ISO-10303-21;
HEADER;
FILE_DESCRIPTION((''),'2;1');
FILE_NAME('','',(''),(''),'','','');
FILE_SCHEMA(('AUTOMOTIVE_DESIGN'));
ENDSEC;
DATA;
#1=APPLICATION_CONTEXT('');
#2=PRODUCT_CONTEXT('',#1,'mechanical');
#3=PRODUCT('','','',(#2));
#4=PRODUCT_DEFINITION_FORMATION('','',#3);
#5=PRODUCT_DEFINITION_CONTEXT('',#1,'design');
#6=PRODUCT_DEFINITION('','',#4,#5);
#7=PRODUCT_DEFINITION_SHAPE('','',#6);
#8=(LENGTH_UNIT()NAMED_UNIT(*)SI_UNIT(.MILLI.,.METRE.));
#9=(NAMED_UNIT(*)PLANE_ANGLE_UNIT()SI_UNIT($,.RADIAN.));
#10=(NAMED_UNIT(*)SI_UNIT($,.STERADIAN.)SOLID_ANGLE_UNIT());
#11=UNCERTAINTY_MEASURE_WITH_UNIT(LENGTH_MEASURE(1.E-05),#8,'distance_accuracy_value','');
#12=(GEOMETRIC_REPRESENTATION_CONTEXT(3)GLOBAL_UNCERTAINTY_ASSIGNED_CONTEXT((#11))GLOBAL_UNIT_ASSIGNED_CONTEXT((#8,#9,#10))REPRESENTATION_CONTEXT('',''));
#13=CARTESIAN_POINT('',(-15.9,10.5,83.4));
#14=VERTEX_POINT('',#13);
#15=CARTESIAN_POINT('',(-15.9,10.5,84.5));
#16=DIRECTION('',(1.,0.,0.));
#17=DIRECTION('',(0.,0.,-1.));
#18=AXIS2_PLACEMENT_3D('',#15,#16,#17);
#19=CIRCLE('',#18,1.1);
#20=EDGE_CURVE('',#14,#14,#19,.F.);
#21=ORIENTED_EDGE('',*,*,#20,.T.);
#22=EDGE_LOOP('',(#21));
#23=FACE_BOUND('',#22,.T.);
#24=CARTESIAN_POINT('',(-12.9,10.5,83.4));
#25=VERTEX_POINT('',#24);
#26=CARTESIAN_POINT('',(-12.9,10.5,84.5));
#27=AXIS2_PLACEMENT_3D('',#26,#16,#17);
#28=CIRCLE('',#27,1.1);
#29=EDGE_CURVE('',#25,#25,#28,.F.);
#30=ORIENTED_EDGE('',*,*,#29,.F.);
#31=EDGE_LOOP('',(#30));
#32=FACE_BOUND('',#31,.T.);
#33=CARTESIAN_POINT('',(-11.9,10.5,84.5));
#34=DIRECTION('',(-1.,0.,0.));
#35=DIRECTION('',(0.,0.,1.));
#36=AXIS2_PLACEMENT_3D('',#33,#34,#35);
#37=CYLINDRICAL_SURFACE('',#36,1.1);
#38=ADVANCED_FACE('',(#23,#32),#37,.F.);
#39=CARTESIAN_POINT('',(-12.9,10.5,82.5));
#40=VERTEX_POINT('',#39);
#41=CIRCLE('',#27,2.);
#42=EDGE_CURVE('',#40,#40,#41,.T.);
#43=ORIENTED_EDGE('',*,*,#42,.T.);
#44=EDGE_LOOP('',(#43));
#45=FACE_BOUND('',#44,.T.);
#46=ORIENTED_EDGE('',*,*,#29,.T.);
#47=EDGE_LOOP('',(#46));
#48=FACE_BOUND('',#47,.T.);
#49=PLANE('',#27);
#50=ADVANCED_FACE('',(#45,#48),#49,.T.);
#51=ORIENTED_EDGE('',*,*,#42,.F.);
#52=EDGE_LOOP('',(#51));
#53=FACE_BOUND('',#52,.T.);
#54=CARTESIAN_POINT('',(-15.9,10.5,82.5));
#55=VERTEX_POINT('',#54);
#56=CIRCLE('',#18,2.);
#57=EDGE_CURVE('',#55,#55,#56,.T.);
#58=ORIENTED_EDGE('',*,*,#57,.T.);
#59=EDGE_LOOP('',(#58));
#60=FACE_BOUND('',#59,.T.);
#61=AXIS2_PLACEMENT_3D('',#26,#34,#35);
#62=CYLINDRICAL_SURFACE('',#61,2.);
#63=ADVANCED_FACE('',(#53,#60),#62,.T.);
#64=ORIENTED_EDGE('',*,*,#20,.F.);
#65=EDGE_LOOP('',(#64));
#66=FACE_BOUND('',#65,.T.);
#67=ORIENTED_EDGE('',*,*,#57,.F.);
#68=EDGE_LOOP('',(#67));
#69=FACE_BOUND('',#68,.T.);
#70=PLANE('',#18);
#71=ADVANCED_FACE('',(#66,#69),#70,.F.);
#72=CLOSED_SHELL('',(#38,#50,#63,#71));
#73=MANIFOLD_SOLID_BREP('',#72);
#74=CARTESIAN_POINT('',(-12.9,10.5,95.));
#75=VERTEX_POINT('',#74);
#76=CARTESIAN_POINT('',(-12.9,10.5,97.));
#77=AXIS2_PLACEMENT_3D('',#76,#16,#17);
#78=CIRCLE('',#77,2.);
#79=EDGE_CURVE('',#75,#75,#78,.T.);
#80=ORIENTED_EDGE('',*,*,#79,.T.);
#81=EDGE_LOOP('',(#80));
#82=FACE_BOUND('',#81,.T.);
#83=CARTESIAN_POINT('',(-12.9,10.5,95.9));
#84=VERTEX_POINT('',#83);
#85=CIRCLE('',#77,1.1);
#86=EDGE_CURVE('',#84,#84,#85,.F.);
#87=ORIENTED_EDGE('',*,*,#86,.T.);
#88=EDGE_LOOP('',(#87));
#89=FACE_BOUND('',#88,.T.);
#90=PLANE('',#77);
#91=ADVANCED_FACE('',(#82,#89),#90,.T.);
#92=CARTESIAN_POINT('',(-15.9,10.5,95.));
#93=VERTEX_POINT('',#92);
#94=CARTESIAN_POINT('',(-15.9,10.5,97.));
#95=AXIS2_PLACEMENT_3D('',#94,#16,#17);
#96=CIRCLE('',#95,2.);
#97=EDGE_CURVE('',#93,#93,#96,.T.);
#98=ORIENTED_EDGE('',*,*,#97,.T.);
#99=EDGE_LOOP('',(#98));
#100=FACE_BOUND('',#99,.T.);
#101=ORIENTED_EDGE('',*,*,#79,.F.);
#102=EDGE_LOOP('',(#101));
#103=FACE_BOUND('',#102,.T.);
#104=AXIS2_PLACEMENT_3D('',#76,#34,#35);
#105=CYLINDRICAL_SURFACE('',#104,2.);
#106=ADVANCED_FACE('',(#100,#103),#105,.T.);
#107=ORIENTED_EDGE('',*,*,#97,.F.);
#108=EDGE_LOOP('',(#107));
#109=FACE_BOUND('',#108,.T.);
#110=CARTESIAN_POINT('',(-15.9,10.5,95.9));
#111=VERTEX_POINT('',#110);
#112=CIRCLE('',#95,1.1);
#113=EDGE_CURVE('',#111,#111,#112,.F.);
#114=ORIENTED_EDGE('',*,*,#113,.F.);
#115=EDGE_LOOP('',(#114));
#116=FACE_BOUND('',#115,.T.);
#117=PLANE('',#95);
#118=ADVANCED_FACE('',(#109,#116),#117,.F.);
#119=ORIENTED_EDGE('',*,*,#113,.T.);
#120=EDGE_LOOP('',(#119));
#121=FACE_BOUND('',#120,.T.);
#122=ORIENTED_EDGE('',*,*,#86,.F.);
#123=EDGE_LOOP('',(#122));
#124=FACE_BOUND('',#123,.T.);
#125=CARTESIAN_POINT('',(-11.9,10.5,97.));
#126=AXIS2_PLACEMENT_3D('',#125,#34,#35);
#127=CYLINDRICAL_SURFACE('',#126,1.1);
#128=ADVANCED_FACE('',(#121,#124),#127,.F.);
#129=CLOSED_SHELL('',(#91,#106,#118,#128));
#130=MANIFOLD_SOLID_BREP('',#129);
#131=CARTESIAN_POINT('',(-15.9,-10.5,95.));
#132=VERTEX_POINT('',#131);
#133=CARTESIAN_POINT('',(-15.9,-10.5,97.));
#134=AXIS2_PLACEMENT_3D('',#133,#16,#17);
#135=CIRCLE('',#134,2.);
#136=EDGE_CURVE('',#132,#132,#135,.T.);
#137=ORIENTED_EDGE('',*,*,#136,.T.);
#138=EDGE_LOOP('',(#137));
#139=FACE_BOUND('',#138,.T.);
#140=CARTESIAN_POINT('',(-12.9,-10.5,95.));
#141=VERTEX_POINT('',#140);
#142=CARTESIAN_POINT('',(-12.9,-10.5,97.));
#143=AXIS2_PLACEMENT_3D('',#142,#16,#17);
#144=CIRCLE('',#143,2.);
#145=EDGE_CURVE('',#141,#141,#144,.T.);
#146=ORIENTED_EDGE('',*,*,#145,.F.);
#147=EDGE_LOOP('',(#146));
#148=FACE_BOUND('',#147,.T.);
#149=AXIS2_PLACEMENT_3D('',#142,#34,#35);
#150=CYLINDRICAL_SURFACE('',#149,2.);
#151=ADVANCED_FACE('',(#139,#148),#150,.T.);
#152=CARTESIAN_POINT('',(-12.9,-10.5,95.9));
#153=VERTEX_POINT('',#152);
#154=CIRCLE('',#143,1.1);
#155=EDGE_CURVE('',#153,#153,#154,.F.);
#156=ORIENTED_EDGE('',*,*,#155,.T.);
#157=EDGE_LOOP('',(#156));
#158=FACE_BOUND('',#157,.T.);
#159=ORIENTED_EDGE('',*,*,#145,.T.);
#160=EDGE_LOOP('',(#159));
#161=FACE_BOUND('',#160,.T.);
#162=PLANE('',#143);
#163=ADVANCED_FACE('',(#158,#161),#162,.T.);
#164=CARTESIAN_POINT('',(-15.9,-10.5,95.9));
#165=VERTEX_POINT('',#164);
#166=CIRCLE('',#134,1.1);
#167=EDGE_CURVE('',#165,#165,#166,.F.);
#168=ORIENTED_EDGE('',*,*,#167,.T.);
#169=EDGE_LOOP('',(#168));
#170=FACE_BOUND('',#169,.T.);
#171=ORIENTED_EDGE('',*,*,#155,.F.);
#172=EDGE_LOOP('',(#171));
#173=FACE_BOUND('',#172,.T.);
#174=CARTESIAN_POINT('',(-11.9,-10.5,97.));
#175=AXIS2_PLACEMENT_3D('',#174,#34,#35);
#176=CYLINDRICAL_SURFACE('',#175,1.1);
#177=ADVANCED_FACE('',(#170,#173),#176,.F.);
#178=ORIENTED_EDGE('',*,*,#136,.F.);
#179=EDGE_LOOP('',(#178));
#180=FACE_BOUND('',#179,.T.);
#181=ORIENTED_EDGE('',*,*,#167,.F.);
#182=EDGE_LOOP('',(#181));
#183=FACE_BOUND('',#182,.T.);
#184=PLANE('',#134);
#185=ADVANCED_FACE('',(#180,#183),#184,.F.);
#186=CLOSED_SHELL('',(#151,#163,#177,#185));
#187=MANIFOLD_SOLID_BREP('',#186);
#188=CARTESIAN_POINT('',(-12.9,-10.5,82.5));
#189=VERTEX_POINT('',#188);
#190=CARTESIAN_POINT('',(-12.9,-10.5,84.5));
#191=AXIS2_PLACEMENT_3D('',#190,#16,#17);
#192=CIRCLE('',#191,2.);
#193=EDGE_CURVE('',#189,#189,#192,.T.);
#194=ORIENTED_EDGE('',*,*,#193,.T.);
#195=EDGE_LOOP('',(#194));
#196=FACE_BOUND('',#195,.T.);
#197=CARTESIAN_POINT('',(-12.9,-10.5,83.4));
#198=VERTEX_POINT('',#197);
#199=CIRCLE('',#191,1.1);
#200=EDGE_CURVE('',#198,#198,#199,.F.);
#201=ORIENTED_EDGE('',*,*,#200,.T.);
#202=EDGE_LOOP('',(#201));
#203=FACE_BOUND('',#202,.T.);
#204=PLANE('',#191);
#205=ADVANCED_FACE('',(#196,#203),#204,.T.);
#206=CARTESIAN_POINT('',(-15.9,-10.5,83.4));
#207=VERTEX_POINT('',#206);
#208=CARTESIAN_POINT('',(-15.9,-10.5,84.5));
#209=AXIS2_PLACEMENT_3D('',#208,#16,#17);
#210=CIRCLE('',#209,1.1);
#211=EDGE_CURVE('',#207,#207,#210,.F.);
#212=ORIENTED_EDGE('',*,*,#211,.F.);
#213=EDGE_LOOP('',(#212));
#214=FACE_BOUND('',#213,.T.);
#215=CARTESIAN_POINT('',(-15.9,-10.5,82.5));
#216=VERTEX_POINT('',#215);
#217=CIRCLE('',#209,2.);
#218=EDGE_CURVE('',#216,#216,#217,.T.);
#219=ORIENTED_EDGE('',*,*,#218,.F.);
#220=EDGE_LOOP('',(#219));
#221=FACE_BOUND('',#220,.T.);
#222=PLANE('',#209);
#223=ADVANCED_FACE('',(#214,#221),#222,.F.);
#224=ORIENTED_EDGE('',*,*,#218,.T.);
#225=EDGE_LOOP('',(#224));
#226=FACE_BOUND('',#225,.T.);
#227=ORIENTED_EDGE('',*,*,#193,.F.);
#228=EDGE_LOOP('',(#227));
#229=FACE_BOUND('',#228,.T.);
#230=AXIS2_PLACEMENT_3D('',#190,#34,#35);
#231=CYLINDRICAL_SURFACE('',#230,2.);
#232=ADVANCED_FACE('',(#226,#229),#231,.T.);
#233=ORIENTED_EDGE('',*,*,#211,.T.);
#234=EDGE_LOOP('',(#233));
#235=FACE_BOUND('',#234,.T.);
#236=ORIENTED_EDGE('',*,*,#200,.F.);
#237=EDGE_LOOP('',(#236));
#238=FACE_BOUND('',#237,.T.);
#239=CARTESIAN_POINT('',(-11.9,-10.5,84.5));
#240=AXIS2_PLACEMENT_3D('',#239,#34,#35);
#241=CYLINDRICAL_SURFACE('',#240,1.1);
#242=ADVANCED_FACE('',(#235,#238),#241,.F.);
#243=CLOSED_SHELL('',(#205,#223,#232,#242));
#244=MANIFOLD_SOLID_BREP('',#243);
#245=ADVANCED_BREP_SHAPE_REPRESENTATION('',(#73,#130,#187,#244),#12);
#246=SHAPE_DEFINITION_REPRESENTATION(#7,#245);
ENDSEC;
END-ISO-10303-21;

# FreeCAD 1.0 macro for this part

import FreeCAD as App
import Part
import Sketcher
Q = App.Units.Quantity

doc = App.newDocument("Part")
body = doc.addObject("PartDesign::Body", "Body")

# Sketch on YZ plane
sketch1 = body.newObject("Sketcher::SketchObject", "Sketch")
sketch1.AttachmentSupport = (doc.getObject("YZ_Plane"), [""])
sketch1.MapMode = "FlatFace"
sketch1.AttachmentOffset = App.Placement(App.Vector(0, 0, -15.9), App.Rotation())
sketch1.addGeometry(Part.Circle(App.Vector(-10.5, 97, 0), App.Vector(0, 0, 1), 2), False)
sketch1.addConstraint([
    Sketcher.Constraint("Diameter", 0, Q("4 mm")),
    Sketcher.Constraint("DistanceY", -1, 1, 0, 3, Q("97 mm")),
    Sketcher.Constraint("DistanceX", 0, 3, -1, 1, Q("10.5 mm")),
])
pad1 = body.newObject("PartDesign::Pad", "Pad")
pad1.Profile = sketch1
pad1.Length = 3
body2 = doc.addObject("PartDesign::Body", "Body001")

# Sketch on YZ plane
sketch2 = body2.newObject("Sketcher::SketchObject", "Sketch001")
sketch2.AttachmentSupport = (doc.getObject("YZ_Plane001"), [""])
sketch2.MapMode = "FlatFace"
sketch2.AttachmentOffset = App.Placement(App.Vector(0, 0, -15.9), App.Rotation())
sketch2.addGeometry(Part.Circle(App.Vector(-10.5, 84.5, 0), App.Vector(0, 0, 1), 2), False)
sketch2.addConstraint([
    Sketcher.Constraint("Diameter", 0, Q("4 mm")),
    Sketcher.Constraint("DistanceX", 0, 3, -1, 1, Q("10.5 mm")),
    Sketcher.Constraint("DistanceY", -1, 1, 0, 3, Q("84.5 mm")),
])
pad2 = body2.newObject("PartDesign::Pad", "Pad001")
pad2.Profile = sketch2
pad2.Length = 3
body3 = doc.addObject("PartDesign::Body", "Body002")

# Sketch on YZ plane
sketch3 = body3.newObject("Sketcher::SketchObject", "Sketch002")
sketch3.AttachmentSupport = (doc.getObject("YZ_Plane002"), [""])
sketch3.MapMode = "FlatFace"
sketch3.AttachmentOffset = App.Placement(App.Vector(0, 0, -15.9), App.Rotation())
sketch3.addGeometry(Part.Circle(App.Vector(10.5, 97, 0), App.Vector(0, 0, 1), 2), False)
sketch3.addConstraint([
    Sketcher.Constraint("Diameter", 0, Q("4 mm")),
    Sketcher.Constraint("DistanceY", -1, 1, 0, 3, Q("97 mm")),
    Sketcher.Constraint("DistanceX", -1, 1, 0, 3, Q("10.5 mm")),
])
pad3 = body3.newObject("PartDesign::Pad", "Pad002")
pad3.Profile = sketch3
pad3.Length = 3
body4 = doc.addObject("PartDesign::Body", "Body003")

# Sketch on YZ plane
sketch4 = body4.newObject("Sketcher::SketchObject", "Sketch003")
sketch4.AttachmentSupport = (doc.getObject("YZ_Plane003"), [""])
sketch4.MapMode = "FlatFace"
sketch4.AttachmentOffset = App.Placement(App.Vector(0, 0, -15.9), App.Rotation())
sketch4.addGeometry(Part.Circle(App.Vector(10.5, 84.5, 0), App.Vector(0, 0, 1), 2), False)
sketch4.addConstraint([
    Sketcher.Constraint("Diameter", 0, Q("4 mm")),
    Sketcher.Constraint("DistanceX", -1, 1, 0, 3, Q("10.5 mm")),
    Sketcher.Constraint("DistanceY", -1, 1, 0, 3, Q("84.5 mm")),
])
pad4 = body4.newObject("PartDesign::Pad", "Pad003")
pad4.Profile = sketch4
pad4.Length = 3
body5 = doc.addObject("PartDesign::Body", "Body004")
body5.AllowCompound = True

# Sketch on YZ plane
sketch5 = body5.newObject("Sketcher::SketchObject", "Sketch004")
sketch5.AttachmentSupport = (doc.getObject("YZ_Plane004"), [""])
sketch5.MapMode = "FlatFace"
sketch5.AttachmentOffset = App.Placement(App.Vector(0, 0, -16.9), App.Rotation())
sketch5.addGeometry([
    Part.Circle(App.Vector(-10.5, 97, 0), App.Vector(0, 0, 1), 1.1),
    Part.Circle(App.Vector(-10.5, 84.5, 0), App.Vector(0, 0, 1), 1.1),
    Part.Circle(App.Vector(10.5, 97, 0), App.Vector(0, 0, 1), 1.1),
    Part.Circle(App.Vector(10.5, 84.5, 0), App.Vector(0, 0, 1), 1.1),
], False)
sketch5.addConstraint([
    Sketcher.Constraint("Equal", 0, 1),
    Sketcher.Constraint("Equal", 1, 2),
    Sketcher.Constraint("Equal", 2, 3),
    Sketcher.Constraint("Symmetric", 0, 3, 2, 3, -2),
    Sketcher.Constraint("Symmetric", 1, 3, 3, 3, -2),
    Sketcher.Constraint("Vertical", 0, 3, 1, 3),
    Sketcher.Constraint("Diameter", 0, Q("2.2 mm")),
    Sketcher.Constraint("DistanceY", -1, 1, 0, 3, Q("97 mm")),
    Sketcher.Constraint("DistanceX", 0, 3, 2, 3, Q("21 mm")),
    Sketcher.Constraint("DistanceY", -1, 1, 1, 3, Q("84.5 mm")),
])
pad5 = body5.newObject("PartDesign::Pad", "Pad004")
pad5.Profile = sketch5
pad5.Length = 5
doc.recompute()

body6 = doc.addObject("PartDesign::Body", "Body005")
body6.BaseFeature = body5
boolean = body.newObject("PartDesign::Boolean", "Boolean")
boolean.Type = "Cut"
boolean.addObjects([body6])
doc.recompute()

body7 = doc.addObject("PartDesign::Body", "Body006")
body7.BaseFeature = body5
boolean2 = body2.newObject("PartDesign::Boolean", "Boolean001")
boolean2.Type = "Cut"
boolean2.addObjects([body7])
doc.recompute()

body8 = doc.addObject("PartDesign::Body", "Body007")
body8.BaseFeature = body5
boolean3 = body3.newObject("PartDesign::Boolean", "Boolean002")
boolean3.Type = "Cut"
boolean3.addObjects([body8])
doc.recompute()

boolean4 = body4.newObject("PartDesign::Boolean", "Boolean003")
boolean4.Type = "Cut"
boolean4.addObjects([body5])

doc.recompute()
